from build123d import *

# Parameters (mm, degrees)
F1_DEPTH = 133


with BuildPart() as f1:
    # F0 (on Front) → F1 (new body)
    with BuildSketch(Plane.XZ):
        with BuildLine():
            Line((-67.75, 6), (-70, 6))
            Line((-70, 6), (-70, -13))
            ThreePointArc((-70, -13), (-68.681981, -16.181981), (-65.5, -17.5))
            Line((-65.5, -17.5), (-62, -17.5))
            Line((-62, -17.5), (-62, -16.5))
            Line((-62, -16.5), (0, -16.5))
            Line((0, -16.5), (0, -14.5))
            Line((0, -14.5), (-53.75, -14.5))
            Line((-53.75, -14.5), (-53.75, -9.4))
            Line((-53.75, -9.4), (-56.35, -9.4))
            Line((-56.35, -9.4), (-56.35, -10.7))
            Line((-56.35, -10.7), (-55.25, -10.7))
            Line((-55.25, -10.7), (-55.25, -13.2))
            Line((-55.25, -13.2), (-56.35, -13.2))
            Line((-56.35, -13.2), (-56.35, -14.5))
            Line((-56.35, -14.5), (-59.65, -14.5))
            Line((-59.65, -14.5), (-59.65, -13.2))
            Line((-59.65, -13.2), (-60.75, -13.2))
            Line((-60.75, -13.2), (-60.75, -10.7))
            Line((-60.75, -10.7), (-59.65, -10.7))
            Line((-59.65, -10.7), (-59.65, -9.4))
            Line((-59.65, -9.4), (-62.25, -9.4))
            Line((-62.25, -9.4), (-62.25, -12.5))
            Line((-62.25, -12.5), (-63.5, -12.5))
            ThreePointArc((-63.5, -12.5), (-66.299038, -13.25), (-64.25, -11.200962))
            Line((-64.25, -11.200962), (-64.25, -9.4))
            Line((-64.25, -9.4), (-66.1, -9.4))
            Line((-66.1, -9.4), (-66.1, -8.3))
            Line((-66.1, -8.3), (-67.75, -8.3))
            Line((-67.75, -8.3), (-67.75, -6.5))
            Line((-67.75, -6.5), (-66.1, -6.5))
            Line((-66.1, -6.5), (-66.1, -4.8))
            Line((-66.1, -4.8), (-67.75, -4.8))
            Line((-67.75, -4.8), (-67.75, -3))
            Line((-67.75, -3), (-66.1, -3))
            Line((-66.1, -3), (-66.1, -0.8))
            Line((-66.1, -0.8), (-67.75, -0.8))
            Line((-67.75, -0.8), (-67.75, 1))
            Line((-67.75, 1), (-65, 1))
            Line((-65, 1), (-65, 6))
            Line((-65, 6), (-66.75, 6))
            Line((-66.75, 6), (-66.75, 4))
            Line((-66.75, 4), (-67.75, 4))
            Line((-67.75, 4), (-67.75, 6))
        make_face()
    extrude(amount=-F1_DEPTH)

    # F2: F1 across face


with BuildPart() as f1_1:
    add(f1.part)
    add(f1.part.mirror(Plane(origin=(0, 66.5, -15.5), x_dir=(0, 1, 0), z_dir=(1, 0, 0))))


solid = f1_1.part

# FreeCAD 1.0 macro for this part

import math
import FreeCAD as App
import Part
import Sketcher

doc = App.newDocument("Part")
params = doc.addObject("Spreadsheet::Sheet", "Params")
for row, (alias, value) in enumerate([
    ("sketch1_radius", "4.499998 mm"),
    ("sketch1_radius2", "1.5 mm"),
    ("sketch1_width", "62 mm"),
    ("sketch1_width2", "1 mm"),
    ("sketch1_height", "19 mm"),
    ("pad1_length", "133 mm"),
], start=1):
    params.set(f"A{row}", alias)
    params.set(f"B{row}", "=" + value)
    params.setAlias(f"B{row}", alias)

body = doc.addObject("PartDesign::Body", "Body")

# Sketch on XZ plane
sketch1 = body.newObject("Sketcher::SketchObject", "Sketch")
sketch1.AttachmentSupport = (doc.getObject("XZ_Plane"), [""])
sketch1.MapMode = "FlatFace"
sketch1.addGeometry([
    Part.LineSegment(App.Vector(-67.8, 6, 0), App.Vector(-70, 6, 0)),  # 0
    Part.LineSegment(App.Vector(-70, 6, 0), App.Vector(-70, -13, 0)),  # 1
    Part.ArcOfCircle(Part.Circle(App.Vector(-65.5, -13, 0), App.Vector(0, 0, 1), 4.5), math.radians(180), math.radians(270)),  # 2
    Part.LineSegment(App.Vector(-65.5, -17.5, 0), App.Vector(-62, -17.5, 0)),  # 3
    Part.LineSegment(App.Vector(-62, -17.5, 0), App.Vector(-62, -16.5, 0)),  # 4
    Part.LineSegment(App.Vector(-62, -16.5, 0), App.Vector(0, -16.5, 0)),  # 5
    Part.LineSegment(App.Vector(0, -16.5, 0), App.Vector(0, -14.5, 0)),  # 6
    Part.LineSegment(App.Vector(0, -14.5, 0), App.Vector(-53.8, -14.5, 0)),  # 7
    Part.LineSegment(App.Vector(-53.8, -14.5, 0), App.Vector(-53.8, -9.4, 0)),  # 8
    Part.LineSegment(App.Vector(-53.8, -9.4, 0), App.Vector(-56.4, -9.4, 0)),  # 9
    Part.LineSegment(App.Vector(-56.4, -9.4, 0), App.Vector(-56.4, -10.7, 0)),  # 10
    Part.LineSegment(App.Vector(-56.4, -10.7, 0), App.Vector(-55.2, -10.7, 0)),  # 11
    Part.LineSegment(App.Vector(-55.2, -10.7, 0), App.Vector(-55.2, -13.2, 0)),  # 12
    Part.LineSegment(App.Vector(-55.2, -13.2, 0), App.Vector(-56.4, -13.2, 0)),  # 13
    Part.LineSegment(App.Vector(-56.4, -13.2, 0), App.Vector(-56.4, -14.5, 0)),  # 14
    Part.LineSegment(App.Vector(-56.4, -14.5, 0), App.Vector(-59.6, -14.5, 0)),  # 15
    Part.LineSegment(App.Vector(-59.6, -14.5, 0), App.Vector(-59.6, -13.2, 0)),  # 16
    Part.LineSegment(App.Vector(-59.6, -13.2, 0), App.Vector(-60.8, -13.2, 0)),  # 17
    Part.LineSegment(App.Vector(-60.8, -13.2, 0), App.Vector(-60.8, -10.7, 0)),  # 18
    Part.LineSegment(App.Vector(-60.8, -10.7, 0), App.Vector(-59.6, -10.7, 0)),  # 19
    Part.LineSegment(App.Vector(-59.6, -10.7, 0), App.Vector(-59.6, -9.4, 0)),  # 20
    Part.LineSegment(App.Vector(-59.6, -9.4, 0), App.Vector(-62.2, -9.4, 0)),  # 21
    Part.LineSegment(App.Vector(-62.2, -9.4, 0), App.Vector(-62.2, -12.5, 0)),  # 22
    Part.LineSegment(App.Vector(-62.2, -12.5, 0), App.Vector(-63.5, -12.5, 0)),  # 23
    Part.ArcOfCircle(Part.Circle(App.Vector(-65, -12.5, 0), App.Vector(0, 0, 1), 1.5), math.radians(60), math.radians(360)),  # 24
    Part.LineSegment(App.Vector(-64.2, -11.2, 0), App.Vector(-64.2, -9.4, 0)),  # 25
    Part.LineSegment(App.Vector(-64.2, -9.4, 0), App.Vector(-66.1, -9.4, 0)),  # 26
    Part.LineSegment(App.Vector(-66.1, -9.4, 0), App.Vector(-66.1, -8.3, 0)),  # 27
    Part.LineSegment(App.Vector(-66.1, -8.3, 0), App.Vector(-67.8, -8.3, 0)),  # 28
    Part.LineSegment(App.Vector(-67.8, -8.3, 0), App.Vector(-67.8, -6.5, 0)),  # 29
    Part.LineSegment(App.Vector(-67.8, -6.5, 0), App.Vector(-66.1, -6.5, 0)),  # 30
    Part.LineSegment(App.Vector(-66.1, -6.5, 0), App.Vector(-66.1, -4.8, 0)),  # 31
    Part.LineSegment(App.Vector(-66.1, -4.8, 0), App.Vector(-67.8, -4.8, 0)),  # 32
    Part.LineSegment(App.Vector(-67.8, -4.8, 0), App.Vector(-67.8, -3, 0)),  # 33
    Part.LineSegment(App.Vector(-67.8, -3, 0), App.Vector(-66.1, -3, 0)),  # 34
    Part.LineSegment(App.Vector(-66.1, -3, 0), App.Vector(-66.1, -0.8, 0)),  # 35
    Part.LineSegment(App.Vector(-66.1, -0.8, 0), App.Vector(-67.8, -0.8, 0)),  # 36
    Part.LineSegment(App.Vector(-67.8, -0.8, 0), App.Vector(-67.8, 1, 0)),  # 37
    Part.LineSegment(App.Vector(-67.8, 1, 0), App.Vector(-65, 1, 0)),  # 38
    Part.LineSegment(App.Vector(-65, 1, 0), App.Vector(-65, 6, 0)),  # 39
    Part.LineSegment(App.Vector(-65, 6, 0), App.Vector(-66.8, 6, 0)),  # 40
    Part.LineSegment(App.Vector(-66.8, 6, 0), App.Vector(-66.8, 4, 0)),  # 41
    Part.LineSegment(App.Vector(-66.8, 4, 0), App.Vector(-67.8, 4, 0)),  # 42
    Part.LineSegment(App.Vector(-67.8, 4, 0), App.Vector(-67.8, 6, 0)),  # 43
], False)
sketch1.addConstraint([
    Sketcher.Constraint("Coincident", 0, 2, 1, 1),
    Sketcher.Constraint("Tangent", 1, 2, 2, 1),
    Sketcher.Constraint("Tangent", 2, 2, 3, 1),
    Sketcher.Constraint("Coincident", 3, 2, 4, 1),
    Sketcher.Constraint("Coincident", 4, 2, 5, 1),
    Sketcher.Constraint("Coincident", 5, 2, 6, 1),
    Sketcher.Constraint("Coincident", 6, 2, 7, 1),
    Sketcher.Constraint("Coincident", 7, 2, 8, 1),
    Sketcher.Constraint("Coincident", 8, 2, 9, 1),
    Sketcher.Constraint("Coincident", 9, 2, 10, 1),
    Sketcher.Constraint("Coincident", 10, 2, 11, 1),
    Sketcher.Constraint("Coincident", 11, 2, 12, 1),
    Sketcher.Constraint("Coincident", 12, 2, 13, 1),
    Sketcher.Constraint("Coincident", 13, 2, 14, 1),
    Sketcher.Constraint("Coincident", 14, 2, 15, 1),
    Sketcher.Constraint("Coincident", 15, 2, 16, 1),
    Sketcher.Constraint("Coincident", 16, 2, 17, 1),
    Sketcher.Constraint("Coincident", 17, 2, 18, 1),
    Sketcher.Constraint("Coincident", 18, 2, 19, 1),
    Sketcher.Constraint("Coincident", 19, 2, 20, 1),
    Sketcher.Constraint("Coincident", 20, 2, 21, 1),
    Sketcher.Constraint("Coincident", 21, 2, 22, 1),
    Sketcher.Constraint("Coincident", 22, 2, 23, 1),
    Sketcher.Constraint("Coincident", 23, 2, 24, 2),
    Sketcher.Constraint("Coincident", 24, 1, 25, 1),
    Sketcher.Constraint("Coincident", 25, 2, 26, 1),
    Sketcher.Constraint("Coincident", 26, 2, 27, 1),
    Sketcher.Constraint("Coincident", 27, 2, 28, 1),
    Sketcher.Constraint("Coincident", 28, 2, 29, 1),
    Sketcher.Constraint("Coincident", 29, 2, 30, 1),
    Sketcher.Constraint("Coincident", 30, 2, 31, 1),
    Sketcher.Constraint("Coincident", 31, 2, 32, 1),
    Sketcher.Constraint("Coincident", 32, 2, 33, 1),
    Sketcher.Constraint("Coincident", 33, 2, 34, 1),
    Sketcher.Constraint("Coincident", 34, 2, 35, 1),
    Sketcher.Constraint("Coincident", 35, 2, 36, 1),
    Sketcher.Constraint("Coincident", 36, 2, 37, 1),
    Sketcher.Constraint("Coincident", 37, 2, 38, 1),
    Sketcher.Constraint("Coincident", 38, 2, 39, 1),
    Sketcher.Constraint("Coincident", 39, 2, 40, 1),
    Sketcher.Constraint("Coincident", 40, 2, 41, 1),
    Sketcher.Constraint("Coincident", 41, 2, 42, 1),
    Sketcher.Constraint("Coincident", 42, 2, 43, 1),
    Sketcher.Constraint("Coincident", 43, 2, 0, 1),
    Sketcher.Constraint("Horizontal", 0),
    Sketcher.Constraint("Vertical", 1),
    Sketcher.Constraint("Horizontal", 3),
    Sketcher.Constraint("Vertical", 4),
    Sketcher.Constraint("Horizontal", 5),
    Sketcher.Constraint("Vertical", 6),
    Sketcher.Constraint("Horizontal", 7),
    Sketcher.Constraint("Vertical", 8),
    Sketcher.Constraint("Horizontal", 9),
    Sketcher.Constraint("Vertical", 10),
    Sketcher.Constraint("Horizontal", 11),
    Sketcher.Constraint("Vertical", 12),
    Sketcher.Constraint("Horizontal", 13),
    Sketcher.Constraint("Vertical", 14),
    Sketcher.Constraint("Horizontal", 15),
    Sketcher.Constraint("Vertical", 16),
    Sketcher.Constraint("Horizontal", 17),
    Sketcher.Constraint("Vertical", 18),
    Sketcher.Constraint("Horizontal", 19),
    Sketcher.Constraint("Vertical", 20),
    Sketcher.Constraint("Horizontal", 21),
    Sketcher.Constraint("Vertical", 22),
    Sketcher.Constraint("Horizontal", 23),
    Sketcher.Constraint("Vertical", 25),
    Sketcher.Constraint("Horizontal", 26),
    Sketcher.Constraint("Vertical", 27),
    Sketcher.Constraint("Horizontal", 28),
    Sketcher.Constraint("Vertical", 29),
    Sketcher.Constraint("Horizontal", 30),
    Sketcher.Constraint("Vertical", 31),
    Sketcher.Constraint("Horizontal", 32),
    Sketcher.Constraint("Vertical", 33),
    Sketcher.Constraint("Horizontal", 34),
    Sketcher.Constraint("Vertical", 35),
    Sketcher.Constraint("Horizontal", 36),
    Sketcher.Constraint("Vertical", 37),
    Sketcher.Constraint("Horizontal", 38),
    Sketcher.Constraint("Vertical", 39),
    Sketcher.Constraint("Horizontal", 40),
    Sketcher.Constraint("Vertical", 41),
    Sketcher.Constraint("Horizontal", 42),
    Sketcher.Constraint("Vertical", 43),
    Sketcher.Constraint("PointOnObject", 5, 2, -2),
    Sketcher.Constraint("Horizontal", 7, 2, 14, 2),
    Sketcher.Constraint("Horizontal", 13, 2, 16, 2),
    Sketcher.Constraint("Horizontal", 11, 2, 18, 2),
    Sketcher.Constraint("Horizontal", 9, 2, 20, 2),
    Sketcher.Constraint("Horizontal", 24, 3, 22, 2),
    Sketcher.Constraint("Horizontal", 21, 2, 25, 2),
    Sketcher.Constraint("Horizontal", 0, 2, 39, 2),
    Sketcher.Constraint("Vertical", 10, 2, 13, 2),
    Sketcher.Constraint("Vertical", 16, 2, 19, 2),
    Sketcher.Constraint("Vertical", 27, 2, 30, 2),
    Sketcher.Constraint("Vertical", 29, 2, 32, 2),
    Sketcher.Constraint("Vertical", 31, 2, 34, 2),
    Sketcher.Constraint("Vertical", 33, 2, 36, 2),
    Sketcher.Constraint("Vertical", 24, 3, 38, 2),
    Sketcher.Constraint("Vertical", 37, 2, 42, 2),
    Sketcher.Constraint("Equal", 13, 17),
    Sketcher.Constraint("Equal", 9, 21),
    Sketcher.Constraint("Equal", 42, 4),
    Sketcher.Constraint("Equal", 10, 14),
    Sketcher.Constraint("Equal", 19, 27),
    Sketcher.Constraint("Equal", 29, 33),
    Sketcher.Constraint("Equal", 33, 37),
    Sketcher.Constraint("Equal", 6, 41),
    Sketcher.Constraint("Radius", 2, 4.499998),
    Sketcher.Constraint("Radius", 24, 1.5),
    Sketcher.Constraint("DistanceX", 5, 1, 5, 2, 62.0),
    Sketcher.Constraint("DistanceX", 42, 2, 42, 1, 1.0),
    Sketcher.Constraint("DistanceY", 1, 2, 1, 1, 19.0),
    Sketcher.Constraint("DistanceY", 6, 1, 6, 2, 2.0),
    Sketcher.Constraint("DistanceY", 39, 1, 39, 2, 5.0),
    Sketcher.Constraint("DistanceX", 3, 1, 3, 2, 3.5),
    Sketcher.Constraint("DistanceX", 9, 2, 9, 1, 2.6),
    Sketcher.Constraint("DistanceX", 11, 1, 11, 2, 1.1),
    Sketcher.Constraint("DistanceX", 15, 2, 15, 1, 3.3),
    Sketcher.Constraint("DistanceY", 8, 1, 8, 2, 5.1),
    Sketcher.Constraint("DistanceY", 10, 2, 10, 1, 1.3),
    Sketcher.Constraint("DistanceY", 22, 2, 22, 1, 3.1),
    Sketcher.Constraint("DistanceY", 29, 1, 29, 2, 1.8),
    Sketcher.Constraint("DistanceY", 31, 1, 31, 2, 1.7),
    Sketcher.Constraint("DistanceY", 2, 3, -1, 1, 13.000002),
    Sketcher.Constraint("DistanceX", 24, 3, -1, 1, 65.0),
    Sketcher.Constraint("DistanceX", 24, 1, 22, 2, 2.0),
    Sketcher.Constraint("DistanceX", 0, 2, 0, 1, 2.25),
    Sketcher.Constraint("DistanceX", 7, 2, 7, 1, 53.75),
    Sketcher.Constraint("DistanceX", 26, 2, 26, 1, 1.85),
])
sketch1.setExpression("Constraints[110]", "Params.sketch1_radius")
sketch1.setExpression("Constraints[111]", "Params.sketch1_radius2")
sketch1.setExpression("Constraints[112]", "Params.sketch1_width")
sketch1.setExpression("Constraints[113]", "Params.sketch1_width2")
sketch1.setExpression("Constraints[114]", "Params.sketch1_height")
pad1 = body.newObject("PartDesign::Pad", "Pad")
pad1.Profile = sketch1
pad1.setExpression("Length", "Params.pad1_length")
pad1.Reversed = True
body2 = doc.addObject("PartDesign::Body", "Body001")
doc.recompute()

body2.BaseFeature = body
doc.recompute()

mirroring = doc.addObject("Part::Mirroring", "Mirroring")
mirroring.Source = body
mirroring.Base = App.Vector(0, 66.5, -15.5)
mirroring.Normal = App.Vector(1, 0, 0)
body3 = doc.addObject("PartDesign::Body", "Body002")
body3.BaseFeature = mirroring
boolean = body2.newObject("PartDesign::Boolean", "Boolean")
boolean.Type = "Fuse"
boolean.addObjects([body3])
doc.recompute()
mirroring.Visibility = False

doc.recompute()
